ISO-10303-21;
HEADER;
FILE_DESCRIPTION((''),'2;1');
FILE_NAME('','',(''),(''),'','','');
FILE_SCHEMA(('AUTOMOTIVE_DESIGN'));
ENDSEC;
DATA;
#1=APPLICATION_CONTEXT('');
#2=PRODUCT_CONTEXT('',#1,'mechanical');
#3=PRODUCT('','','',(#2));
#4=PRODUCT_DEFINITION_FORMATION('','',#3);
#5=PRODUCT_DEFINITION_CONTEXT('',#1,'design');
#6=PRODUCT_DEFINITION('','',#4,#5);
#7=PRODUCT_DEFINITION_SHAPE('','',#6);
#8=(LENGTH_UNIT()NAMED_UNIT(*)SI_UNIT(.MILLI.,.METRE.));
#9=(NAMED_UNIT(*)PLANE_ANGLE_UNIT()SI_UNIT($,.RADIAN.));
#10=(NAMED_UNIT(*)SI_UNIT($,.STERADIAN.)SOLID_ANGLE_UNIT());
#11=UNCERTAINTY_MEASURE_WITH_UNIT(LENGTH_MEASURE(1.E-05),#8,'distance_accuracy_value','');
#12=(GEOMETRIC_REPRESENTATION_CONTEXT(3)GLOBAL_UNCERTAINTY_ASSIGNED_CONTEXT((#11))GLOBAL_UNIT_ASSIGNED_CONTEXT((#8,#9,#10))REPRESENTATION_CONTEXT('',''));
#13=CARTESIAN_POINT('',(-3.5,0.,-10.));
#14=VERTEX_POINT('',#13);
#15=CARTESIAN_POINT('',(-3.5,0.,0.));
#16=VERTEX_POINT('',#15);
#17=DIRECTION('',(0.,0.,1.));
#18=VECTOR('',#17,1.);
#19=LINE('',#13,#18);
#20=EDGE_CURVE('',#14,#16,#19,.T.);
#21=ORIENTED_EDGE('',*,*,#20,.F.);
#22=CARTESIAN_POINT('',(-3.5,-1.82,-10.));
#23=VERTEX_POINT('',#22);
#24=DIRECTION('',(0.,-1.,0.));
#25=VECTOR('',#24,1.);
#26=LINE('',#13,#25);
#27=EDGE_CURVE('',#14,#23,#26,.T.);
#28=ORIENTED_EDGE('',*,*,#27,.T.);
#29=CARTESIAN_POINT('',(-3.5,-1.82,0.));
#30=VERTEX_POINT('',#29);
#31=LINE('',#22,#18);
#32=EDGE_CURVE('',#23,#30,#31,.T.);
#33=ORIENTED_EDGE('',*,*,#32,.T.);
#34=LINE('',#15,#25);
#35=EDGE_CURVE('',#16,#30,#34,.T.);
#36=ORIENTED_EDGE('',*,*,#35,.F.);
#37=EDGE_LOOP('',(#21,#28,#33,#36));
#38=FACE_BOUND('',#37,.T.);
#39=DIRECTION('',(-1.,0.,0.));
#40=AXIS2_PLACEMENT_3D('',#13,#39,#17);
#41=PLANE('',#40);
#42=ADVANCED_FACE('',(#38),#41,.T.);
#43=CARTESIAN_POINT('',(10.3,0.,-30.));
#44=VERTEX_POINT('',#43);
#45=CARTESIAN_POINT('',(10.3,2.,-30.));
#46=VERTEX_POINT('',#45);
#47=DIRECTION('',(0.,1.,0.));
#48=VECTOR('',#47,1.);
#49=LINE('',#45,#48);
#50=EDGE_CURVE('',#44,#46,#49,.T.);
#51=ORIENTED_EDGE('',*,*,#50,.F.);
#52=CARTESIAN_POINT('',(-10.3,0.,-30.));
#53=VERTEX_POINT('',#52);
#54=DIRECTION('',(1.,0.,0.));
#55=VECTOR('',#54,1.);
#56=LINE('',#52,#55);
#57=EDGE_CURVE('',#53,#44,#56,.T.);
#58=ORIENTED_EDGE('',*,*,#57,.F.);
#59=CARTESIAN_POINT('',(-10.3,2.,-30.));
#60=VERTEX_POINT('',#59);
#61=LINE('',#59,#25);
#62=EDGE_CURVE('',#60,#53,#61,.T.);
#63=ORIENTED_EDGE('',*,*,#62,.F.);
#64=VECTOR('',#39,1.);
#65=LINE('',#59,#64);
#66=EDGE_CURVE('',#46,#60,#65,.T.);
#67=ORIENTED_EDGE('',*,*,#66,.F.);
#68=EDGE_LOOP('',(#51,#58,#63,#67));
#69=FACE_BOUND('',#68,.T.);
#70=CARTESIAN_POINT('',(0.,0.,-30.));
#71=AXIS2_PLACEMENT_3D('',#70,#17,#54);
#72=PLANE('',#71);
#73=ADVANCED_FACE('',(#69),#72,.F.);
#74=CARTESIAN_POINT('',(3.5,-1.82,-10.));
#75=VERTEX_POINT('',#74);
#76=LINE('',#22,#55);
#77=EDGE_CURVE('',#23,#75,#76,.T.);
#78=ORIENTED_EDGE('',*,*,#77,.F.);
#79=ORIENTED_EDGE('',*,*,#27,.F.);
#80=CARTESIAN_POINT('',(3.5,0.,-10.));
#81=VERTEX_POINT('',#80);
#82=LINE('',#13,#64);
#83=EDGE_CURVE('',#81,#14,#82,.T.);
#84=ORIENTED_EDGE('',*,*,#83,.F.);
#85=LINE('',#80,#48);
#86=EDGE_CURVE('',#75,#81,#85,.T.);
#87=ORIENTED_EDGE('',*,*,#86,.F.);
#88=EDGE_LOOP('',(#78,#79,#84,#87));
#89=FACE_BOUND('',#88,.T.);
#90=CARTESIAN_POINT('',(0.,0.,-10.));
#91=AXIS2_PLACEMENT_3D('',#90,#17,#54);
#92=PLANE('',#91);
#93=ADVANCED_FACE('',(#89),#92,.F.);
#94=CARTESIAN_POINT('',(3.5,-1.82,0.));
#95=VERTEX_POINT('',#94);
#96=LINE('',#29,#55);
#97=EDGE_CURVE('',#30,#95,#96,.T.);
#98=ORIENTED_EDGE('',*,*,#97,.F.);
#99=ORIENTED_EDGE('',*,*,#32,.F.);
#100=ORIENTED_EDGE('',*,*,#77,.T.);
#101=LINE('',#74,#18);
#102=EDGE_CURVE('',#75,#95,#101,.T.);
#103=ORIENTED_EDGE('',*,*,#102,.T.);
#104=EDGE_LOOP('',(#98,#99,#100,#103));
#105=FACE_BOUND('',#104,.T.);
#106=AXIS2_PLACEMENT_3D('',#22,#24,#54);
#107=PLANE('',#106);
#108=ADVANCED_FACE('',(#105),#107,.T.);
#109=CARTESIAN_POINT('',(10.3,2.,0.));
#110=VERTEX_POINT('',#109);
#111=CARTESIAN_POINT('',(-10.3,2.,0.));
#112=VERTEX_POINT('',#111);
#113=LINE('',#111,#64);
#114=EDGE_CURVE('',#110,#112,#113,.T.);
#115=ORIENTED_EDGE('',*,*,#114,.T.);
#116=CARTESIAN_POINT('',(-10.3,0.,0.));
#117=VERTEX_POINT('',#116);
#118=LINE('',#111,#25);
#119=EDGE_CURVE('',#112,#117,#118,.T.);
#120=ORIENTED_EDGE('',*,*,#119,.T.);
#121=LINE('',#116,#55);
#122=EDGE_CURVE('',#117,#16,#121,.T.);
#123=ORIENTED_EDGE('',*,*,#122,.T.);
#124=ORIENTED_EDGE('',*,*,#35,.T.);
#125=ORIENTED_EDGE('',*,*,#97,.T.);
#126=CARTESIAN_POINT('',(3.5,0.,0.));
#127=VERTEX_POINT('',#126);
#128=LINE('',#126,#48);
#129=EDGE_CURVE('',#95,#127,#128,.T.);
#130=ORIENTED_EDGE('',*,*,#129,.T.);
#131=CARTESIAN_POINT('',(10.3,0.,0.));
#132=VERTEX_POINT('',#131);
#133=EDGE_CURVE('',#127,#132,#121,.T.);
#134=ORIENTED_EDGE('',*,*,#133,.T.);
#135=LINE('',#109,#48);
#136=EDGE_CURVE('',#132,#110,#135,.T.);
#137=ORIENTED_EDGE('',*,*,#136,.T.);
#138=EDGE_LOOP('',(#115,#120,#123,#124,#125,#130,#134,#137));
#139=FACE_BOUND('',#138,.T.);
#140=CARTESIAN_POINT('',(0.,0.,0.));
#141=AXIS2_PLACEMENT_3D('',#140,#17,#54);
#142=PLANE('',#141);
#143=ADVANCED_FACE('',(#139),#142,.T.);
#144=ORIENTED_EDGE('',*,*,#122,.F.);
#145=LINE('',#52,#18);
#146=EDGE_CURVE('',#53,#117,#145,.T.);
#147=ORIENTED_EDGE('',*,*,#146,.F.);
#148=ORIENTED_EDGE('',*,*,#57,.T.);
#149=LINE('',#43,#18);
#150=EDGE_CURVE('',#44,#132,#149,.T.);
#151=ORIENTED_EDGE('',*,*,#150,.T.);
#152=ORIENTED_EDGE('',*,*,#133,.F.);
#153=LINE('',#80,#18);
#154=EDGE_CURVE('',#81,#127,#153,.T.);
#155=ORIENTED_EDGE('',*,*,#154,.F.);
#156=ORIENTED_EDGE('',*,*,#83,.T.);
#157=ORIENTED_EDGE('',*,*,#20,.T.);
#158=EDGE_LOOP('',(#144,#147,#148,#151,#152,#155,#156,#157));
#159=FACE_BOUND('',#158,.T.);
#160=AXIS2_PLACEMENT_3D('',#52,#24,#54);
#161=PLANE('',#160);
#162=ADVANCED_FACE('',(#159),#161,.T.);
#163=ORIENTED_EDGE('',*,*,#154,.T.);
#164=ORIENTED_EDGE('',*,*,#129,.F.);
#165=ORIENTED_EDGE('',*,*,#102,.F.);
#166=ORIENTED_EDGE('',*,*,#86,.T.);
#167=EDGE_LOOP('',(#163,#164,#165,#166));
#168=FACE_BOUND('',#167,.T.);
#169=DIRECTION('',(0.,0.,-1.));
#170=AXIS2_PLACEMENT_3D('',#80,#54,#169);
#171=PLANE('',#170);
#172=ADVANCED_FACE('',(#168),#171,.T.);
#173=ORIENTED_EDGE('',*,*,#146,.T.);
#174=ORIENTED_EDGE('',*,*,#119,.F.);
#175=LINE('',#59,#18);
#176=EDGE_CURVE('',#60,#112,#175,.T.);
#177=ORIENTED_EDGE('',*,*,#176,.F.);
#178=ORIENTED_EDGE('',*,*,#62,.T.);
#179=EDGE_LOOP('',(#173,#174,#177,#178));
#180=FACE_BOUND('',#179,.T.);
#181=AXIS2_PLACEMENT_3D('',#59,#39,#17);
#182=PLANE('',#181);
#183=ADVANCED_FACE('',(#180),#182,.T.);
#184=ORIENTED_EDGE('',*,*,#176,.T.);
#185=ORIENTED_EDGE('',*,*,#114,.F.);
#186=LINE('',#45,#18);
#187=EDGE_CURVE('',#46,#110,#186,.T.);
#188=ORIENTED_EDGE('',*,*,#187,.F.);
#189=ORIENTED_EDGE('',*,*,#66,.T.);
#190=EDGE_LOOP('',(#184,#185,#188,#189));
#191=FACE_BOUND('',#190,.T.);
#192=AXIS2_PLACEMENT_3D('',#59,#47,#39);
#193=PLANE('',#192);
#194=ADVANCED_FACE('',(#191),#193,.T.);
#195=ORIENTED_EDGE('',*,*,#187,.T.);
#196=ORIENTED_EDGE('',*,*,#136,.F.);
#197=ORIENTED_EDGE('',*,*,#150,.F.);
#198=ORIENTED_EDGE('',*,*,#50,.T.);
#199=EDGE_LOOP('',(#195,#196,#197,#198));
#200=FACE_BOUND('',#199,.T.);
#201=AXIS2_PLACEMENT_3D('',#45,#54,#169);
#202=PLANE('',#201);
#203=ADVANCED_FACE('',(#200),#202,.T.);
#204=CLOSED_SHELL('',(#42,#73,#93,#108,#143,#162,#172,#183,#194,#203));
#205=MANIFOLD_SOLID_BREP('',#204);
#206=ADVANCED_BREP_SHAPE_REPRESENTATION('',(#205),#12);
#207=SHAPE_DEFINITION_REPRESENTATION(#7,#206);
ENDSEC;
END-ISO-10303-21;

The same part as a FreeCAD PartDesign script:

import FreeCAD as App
import Part
import Sketcher
from FreeCAD import Vector

doc = App.newDocument("Part")
body = doc.addObject("PartDesign::Body", "Body")

# Sketch on XY plane
sketch1 = body.newObject("Sketcher::SketchObject", "Sketch")
sketch1.AttachmentSupport = (doc.getObject("XY_Plane"), [""])
sketch1.MapMode = "FlatFace"
sketch1.addGeometry([
    Part.LineSegment(Vector(-10.3, 2, 0), Vector(-10.3, 0, 0)),
    Part.LineSegment(Vector(-10.3, 0, 0), Vector(10.3, 0, 0)),
    Part.LineSegment(Vector(10.3, 0, 0), Vector(10.3, 2, 0)),
    Part.LineSegment(Vector(10.3, 2, 0), Vector(-10.3, 2, 0)),
], False)
sketch1.addConstraint([
    Sketcher.Constraint("Coincident", 0, 2, 1, 1),
    Sketcher.Constraint("Coincident", 1, 2, 2, 1),
    Sketcher.Constraint("Coincident", 2, 2, 3, 1),
    Sketcher.Constraint("Coincident", 3, 2, 0, 1),
    Sketcher.Constraint("Vertical", 0),
    Sketcher.Constraint("Horizontal", 1),
    Sketcher.Constraint("Vertical", 2),
    Sketcher.Constraint("Horizontal", 3),
    Sketcher.Constraint("Symmetric", 0, 2, 1, 2, -1, 1),
    Sketcher.Constraint("DistanceY", 0, 2, 0, 1, 2.0),
    Sketcher.Constraint("DistanceX", 1, 1, 1, 2, 20.6),
])
pad1 = body.newObject("PartDesign::Pad", "Pad")
pad1.Profile = sketch1
pad1.Length = 30
pad1.Reversed = True

# Sketch on XY plane
sketch2 = body.newObject("Sketcher::SketchObject", "Sketch001")
sketch2.AttachmentSupport = (doc.getObject("XY_Plane"), [""])
sketch2.MapMode = "FlatFace"
sketch2.addGeometry([
    Part.LineSegment(Vector(-3.5, 0, 0), Vector(-3.5, -1.8, 0)),
    Part.LineSegment(Vector(-3.5, -1.8, 0), Vector(3.5, -1.8, 0)),
    Part.LineSegment(Vector(3.5, -1.8, 0), Vector(3.5, 0, 0)),
    Part.LineSegment(Vector(3.5, 0, 0), Vector(-3.5, 0, 0)),
], False)
sketch2.addConstraint([
    Sketcher.Constraint("Coincident", 0, 2, 1, 1),
    Sketcher.Constraint("Coincident", 1, 2, 2, 1),
    Sketcher.Constraint("Coincident", 2, 2, 3, 1),
    Sketcher.Constraint("Coincident", 3, 2, 0, 1),
    Sketcher.Constraint("Vertical", 0),
    Sketcher.Constraint("Horizontal", 1),
    Sketcher.Constraint("Vertical", 2),
    Sketcher.Constraint("Horizontal", 3),
    Sketcher.Constraint("Symmetric", 2, 2, 3, 2, -1, 1),
    Sketcher.Constraint("DistanceX", 1, 1, 1, 2, 7.0),
    Sketcher.Constraint("DistanceY", 0, 2, 0, 1, 1.82),
])
pad2 = body.newObject("PartDesign::Pad", "Pad001")
pad2.Profile = sketch2
pad2.Length = 10
pad2.Reversed = True

doc.recompute()
